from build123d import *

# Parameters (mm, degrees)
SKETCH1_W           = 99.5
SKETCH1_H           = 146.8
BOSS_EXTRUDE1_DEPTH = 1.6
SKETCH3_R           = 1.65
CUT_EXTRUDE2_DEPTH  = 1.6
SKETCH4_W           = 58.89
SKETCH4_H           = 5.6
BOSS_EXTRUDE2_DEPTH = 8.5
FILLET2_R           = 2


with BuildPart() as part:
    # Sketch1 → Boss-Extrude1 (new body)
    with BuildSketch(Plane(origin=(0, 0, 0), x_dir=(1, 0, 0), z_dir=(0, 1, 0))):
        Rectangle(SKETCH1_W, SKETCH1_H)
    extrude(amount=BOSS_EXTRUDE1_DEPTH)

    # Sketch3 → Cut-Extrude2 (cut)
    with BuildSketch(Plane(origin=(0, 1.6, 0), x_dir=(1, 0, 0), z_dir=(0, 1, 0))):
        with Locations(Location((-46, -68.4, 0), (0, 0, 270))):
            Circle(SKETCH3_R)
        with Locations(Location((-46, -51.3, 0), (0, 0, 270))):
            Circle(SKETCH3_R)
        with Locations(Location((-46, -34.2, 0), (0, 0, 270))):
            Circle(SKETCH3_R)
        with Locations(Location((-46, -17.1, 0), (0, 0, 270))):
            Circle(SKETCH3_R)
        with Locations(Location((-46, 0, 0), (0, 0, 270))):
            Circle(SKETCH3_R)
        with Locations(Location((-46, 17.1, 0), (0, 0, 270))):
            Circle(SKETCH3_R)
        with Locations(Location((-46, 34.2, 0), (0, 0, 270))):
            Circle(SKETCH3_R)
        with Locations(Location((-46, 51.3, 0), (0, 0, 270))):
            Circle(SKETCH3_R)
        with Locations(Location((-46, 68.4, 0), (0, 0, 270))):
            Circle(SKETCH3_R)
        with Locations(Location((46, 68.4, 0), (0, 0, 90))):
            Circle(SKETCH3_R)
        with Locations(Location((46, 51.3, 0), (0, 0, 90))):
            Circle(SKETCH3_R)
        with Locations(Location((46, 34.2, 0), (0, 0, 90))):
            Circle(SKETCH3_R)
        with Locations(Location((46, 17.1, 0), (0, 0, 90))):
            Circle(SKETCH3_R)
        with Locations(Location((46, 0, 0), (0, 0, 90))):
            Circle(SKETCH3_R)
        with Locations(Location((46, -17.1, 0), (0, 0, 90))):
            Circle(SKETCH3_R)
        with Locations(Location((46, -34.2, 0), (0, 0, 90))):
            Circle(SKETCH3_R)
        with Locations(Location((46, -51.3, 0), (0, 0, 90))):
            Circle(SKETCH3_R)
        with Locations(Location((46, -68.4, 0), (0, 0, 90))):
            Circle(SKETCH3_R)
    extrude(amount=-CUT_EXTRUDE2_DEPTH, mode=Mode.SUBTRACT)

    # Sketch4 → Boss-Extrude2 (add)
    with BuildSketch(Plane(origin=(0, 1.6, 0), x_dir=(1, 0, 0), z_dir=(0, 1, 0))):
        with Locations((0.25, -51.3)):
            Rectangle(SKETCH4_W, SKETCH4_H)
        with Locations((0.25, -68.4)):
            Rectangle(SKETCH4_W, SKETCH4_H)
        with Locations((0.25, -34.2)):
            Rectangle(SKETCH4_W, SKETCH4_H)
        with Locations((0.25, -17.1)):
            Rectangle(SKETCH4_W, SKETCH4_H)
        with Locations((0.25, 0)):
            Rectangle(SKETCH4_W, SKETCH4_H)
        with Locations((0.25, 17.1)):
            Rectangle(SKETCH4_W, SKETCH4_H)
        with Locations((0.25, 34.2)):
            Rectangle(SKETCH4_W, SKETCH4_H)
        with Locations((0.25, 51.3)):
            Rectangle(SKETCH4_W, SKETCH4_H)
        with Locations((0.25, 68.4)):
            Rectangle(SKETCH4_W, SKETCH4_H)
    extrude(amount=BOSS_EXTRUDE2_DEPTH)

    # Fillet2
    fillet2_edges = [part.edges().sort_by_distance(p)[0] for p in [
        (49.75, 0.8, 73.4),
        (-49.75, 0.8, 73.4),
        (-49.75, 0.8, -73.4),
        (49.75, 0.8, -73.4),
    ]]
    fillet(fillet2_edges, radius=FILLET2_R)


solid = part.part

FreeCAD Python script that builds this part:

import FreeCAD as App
import Part
import Sketcher
Q = App.Units.Quantity


def edges_at(feature, points):
    """Names of the edges that pass closest to the given points."""
    edges = feature.Shape.Edges
    near = lambda p: min(range(len(edges)), key=lambda i: edges[i].distToShape(Part.Vertex(*p))[0])
    return sorted({f"Edge{near(p) + 1}" for p in points})


def add_polygon(sketch, points):
    """Adds a closed chain of lines whose ends are joined by coincident constraints."""
    first, n = sketch.GeometryCount, len(points)
    for a, b in zip(points, points[1:] + points[:1]):
        sketch.addGeometry(Part.LineSegment(App.Vector(*a, 0), App.Vector(*b, 0)), False)
    for i in range(n):
        sketch.addConstraint(Sketcher.Constraint("Coincident", first + i, 2, first + (i + 1) % n, 1))

doc = App.newDocument("Part")
body = doc.addObject("PartDesign::Body", "Body")

# Sketch on XZ plane
sketch1 = body.newObject("Sketcher::SketchObject", "Sketch")
sketch1.AttachmentSupport = (doc.getObject("XZ_Plane"), [""])
sketch1.MapMode = "FlatFace"
add_polygon(sketch1, [(-50, -73), (-50, 73), (50, 73), (50, -73)])  # lines 0-3
sketch1.addConstraint([
    Sketcher.Constraint("Vertical", 0),
    Sketcher.Constraint("Horizontal", 1),
    Sketcher.Constraint("Vertical", 2),
    Sketcher.Constraint("Horizontal", 3),
    Sketcher.Constraint("Symmetric", 0, 2, 2, 2, -1, 1),
    Sketcher.Constraint("DistanceX", 1, 1, 1, 2, Q("99.5 mm")),
    Sketcher.Constraint("DistanceY", 0, 1, 0, 2, Q("146.8 mm")),
])
pad1 = body.newObject("PartDesign::Pad", "Pad")
pad1.Profile = sketch1
pad1.Length = 1.6
pad1.Reversed = True

# Sketch on XZ plane
sketch2 = body.newObject("Sketcher::SketchObject", "Sketch001")
sketch2.AttachmentSupport = (doc.getObject("XZ_Plane"), [""])
sketch2.MapMode = "FlatFace"
sketch2.AttachmentOffset = App.Placement(App.Vector(0, 0, -1.6), App.Rotation())
sketch2.addGeometry([
    Part.Circle(App.Vector(-46, 68.4, 0), App.Vector(0, 0, 1), 1.6),  # 0
    Part.Circle(App.Vector(-46, 51.3, 0), App.Vector(0, 0, 1), 1.6),  # 1
    Part.Circle(App.Vector(-46, 34.2, 0), App.Vector(0, 0, 1), 1.6),  # 2
    Part.Circle(App.Vector(-46, 17.1, 0), App.Vector(0, 0, 1), 1.6),  # 3
    Part.Circle(App.Vector(-46, 0, 0), App.Vector(0, 0, 1), 1.6),  # 4
    Part.Circle(App.Vector(-46, -17.1, 0), App.Vector(0, 0, 1), 1.6),  # 5
    Part.Circle(App.Vector(-46, -34.2, 0), App.Vector(0, 0, 1), 1.6),  # 6
    Part.Circle(App.Vector(-46, -51.3, 0), App.Vector(0, 0, 1), 1.6),  # 7
    Part.Circle(App.Vector(-46, -68.4, 0), App.Vector(0, 0, 1), 1.6),  # 8
    Part.Circle(App.Vector(46, -68.4, 0), App.Vector(0, 0, 1), 1.6),  # 9
    Part.Circle(App.Vector(46, -51.3, 0), App.Vector(0, 0, 1), 1.6),  # 10
    Part.Circle(App.Vector(46, -34.2, 0), App.Vector(0, 0, 1), 1.6),  # 11
    Part.Circle(App.Vector(46, -17.1, 0), App.Vector(0, 0, 1), 1.6),  # 12
    Part.Circle(App.Vector(46, 0, 0), App.Vector(0, 0, 1), 1.6),  # 13
    Part.Circle(App.Vector(46, 17.1, 0), App.Vector(0, 0, 1), 1.6),  # 14
    Part.Circle(App.Vector(46, 34.2, 0), App.Vector(0, 0, 1), 1.6),  # 15
    Part.Circle(App.Vector(46, 51.3, 0), App.Vector(0, 0, 1), 1.6),  # 16
    Part.Circle(App.Vector(46, 68.4, 0), App.Vector(0, 0, 1), 1.6),  # 17
], False)
sketch2.addConstraint([
    Sketcher.Constraint("Equal", 0, 1),
    Sketcher.Constraint("Equal", 1, 2),
    Sketcher.Constraint("Equal", 2, 3),
    Sketcher.Constraint("Equal", 3, 4),
    Sketcher.Constraint("Equal", 4, 5),
    Sketcher.Constraint("Equal", 5, 6),
    Sketcher.Constraint("Equal", 6, 7),
    Sketcher.Constraint("Equal", 7, 8),
    Sketcher.Constraint("Equal", 8, 9),
    Sketcher.Constraint("Equal", 9, 10),
    Sketcher.Constraint("Equal", 10, 11),
    Sketcher.Constraint("Equal", 11, 12),
    Sketcher.Constraint("Equal", 12, 13),
    Sketcher.Constraint("Equal", 13, 14),
    Sketcher.Constraint("Equal", 14, 15),
    Sketcher.Constraint("Equal", 15, 16),
    Sketcher.Constraint("Equal", 16, 17),
    Sketcher.Constraint("Symmetric", 0, 3, 9, 3, -1, 1),
    Sketcher.Constraint("Symmetric", 1, 3, 10, 3, -1, 1),
    Sketcher.Constraint("Symmetric", 2, 3, 11, 3, -1, 1),
    Sketcher.Constraint("Symmetric", 3, 3, 12, 3, -1, 1),
    Sketcher.Constraint("Symmetric", 4, 3, 13, 3, -1, 1),
    Sketcher.Constraint("Symmetric", 5, 3, 14, 3, -1, 1),
    Sketcher.Constraint("Symmetric", 6, 3, 15, 3, -1, 1),
    Sketcher.Constraint("Symmetric", 7, 3, 16, 3, -1, 1),
    Sketcher.Constraint("Symmetric", 8, 3, 17, 3, -1, 1),
    Sketcher.Constraint("Symmetric", 8, 3, 9, 3, -2),
    Sketcher.Constraint("Symmetric", 7, 3, 10, 3, -2),
    Sketcher.Constraint("Symmetric", 6, 3, 11, 3, -2),
    Sketcher.Constraint("Symmetric", 5, 3, 12, 3, -2),
    Sketcher.Constraint("PointOnObject", 4, 3, -1),
    Sketcher.Constraint("Vertical", 0, 3, 1, 3),
    Sketcher.Constraint("Vertical", 1, 3, 2, 3),
    Sketcher.Constraint("Vertical", 2, 3, 3, 3),
    Sketcher.Constraint("Vertical", 3, 3, 4, 3),
    Sketcher.Constraint("Diameter", 0, Q("3.3 mm")),
    Sketcher.Constraint("DistanceX", 0, 3, -1, 1, Q("46 mm")),
    Sketcher.Constraint("DistanceY", -1, 1, 0, 3, Q("68.4 mm")),
    Sketcher.Constraint("DistanceY", -1, 1, 1, 3, Q("51.3 mm")),
    Sketcher.Constraint("DistanceY", -1, 1, 2, 3, Q("34.2 mm")),
    Sketcher.Constraint("DistanceY", -1, 1, 3, 3, Q("17.1 mm")),
])
pocket1 = body.newObject("PartDesign::Pocket", "Pocket")
pocket1.Profile = sketch2
pocket1.Length = 1.6
pocket1.Reversed = True

# Sketch on XZ plane
sketch3 = body.newObject("Sketcher::SketchObject", "Sketch002")
sketch3.AttachmentSupport = (doc.getObject("XZ_Plane"), [""])
sketch3.MapMode = "FlatFace"
sketch3.AttachmentOffset = App.Placement(App.Vector(0, 0, -1.6), App.Rotation())
add_polygon(sketch3, [(-29, 48), (-29, 54), (30, 54), (30, 48)])  # lines 0-3
add_polygon(sketch3, [(-29, 66), (-29, 71), (30, 71), (30, 66)])  # lines 4-7
add_polygon(sketch3, [(-29, 31), (-29, 37), (30, 37), (30, 31)])  # lines 8-11
add_polygon(sketch3, [(-29, 14), (-29, 20), (30, 20), (30, 14)])  # lines 12-15
add_polygon(sketch3, [(-29, -3), (-29, 3), (30, 3), (30, -3)])  # lines 16-19
add_polygon(sketch3, [(-29, -20), (-29, -14), (30, -14), (30, -20)])  # lines 20-23
add_polygon(sketch3, [(-29, -37), (-29, -31), (30, -31), (30, -37)])  # lines 24-27
add_polygon(sketch3, [(-29, -54), (-29, -48), (30, -48), (30, -54)])  # lines 28-31
add_polygon(sketch3, [(-29, -71), (-29, -66), (30, -66), (30, -71)])  # lines 32-35
sketch3.addConstraint([
    Sketcher.Constraint("Vertical", 0),
    Sketcher.Constraint("Horizontal", 1),
    Sketcher.Constraint("Vertical", 2),
    Sketcher.Constraint("Horizontal", 3),
    Sketcher.Constraint("Vertical", 4),
    Sketcher.Constraint("Horizontal", 5),
    Sketcher.Constraint("Vertical", 6),
    Sketcher.Constraint("Horizontal", 7),
    Sketcher.Constraint("Vertical", 8),
    Sketcher.Constraint("Horizontal", 9),
    Sketcher.Constraint("Vertical", 10),
    Sketcher.Constraint("Horizontal", 11),
    Sketcher.Constraint("Vertical", 12),
    Sketcher.Constraint("Horizontal", 13),
    Sketcher.Constraint("Vertical", 14),
    Sketcher.Constraint("Horizontal", 15),
    Sketcher.Constraint("Vertical", 16),
    Sketcher.Constraint("Horizontal", 17),
    Sketcher.Constraint("Vertical", 18),
    Sketcher.Constraint("Horizontal", 19),
    Sketcher.Constraint("Vertical", 20),
    Sketcher.Constraint("Horizontal", 21),
    Sketcher.Constraint("Vertical", 22),
    Sketcher.Constraint("Horizontal", 23),
    Sketcher.Constraint("Vertical", 24),
    Sketcher.Constraint("Horizontal", 25),
    Sketcher.Constraint("Vertical", 26),
    Sketcher.Constraint("Horizontal", 27),
    Sketcher.Constraint("Vertical", 28),
    Sketcher.Constraint("Horizontal", 29),
    Sketcher.Constraint("Vertical", 30),
    Sketcher.Constraint("Horizontal", 31),
    Sketcher.Constraint("Vertical", 32),
    Sketcher.Constraint("Horizontal", 33),
    Sketcher.Constraint("Vertical", 34),
    Sketcher.Constraint("Horizontal", 35),
    Sketcher.Constraint("Symmetric", 15, 2, 20, 2, -1),
    Sketcher.Constraint("Symmetric", 13, 2, 22, 2, -1),
    Sketcher.Constraint("Symmetric", 11, 2, 24, 2, -1),
    Sketcher.Constraint("Symmetric", 9, 2, 26, 2, -1),
    Sketcher.Constraint("Symmetric", 3, 2, 28, 2, -1),
    Sketcher.Constraint("Symmetric", 1, 2, 30, 2, -1),
    Sketcher.Constraint("Symmetric", 7, 2, 32, 2, -1),
    Sketcher.Constraint("Symmetric", 5, 2, 34, 2, -1),
    Sketcher.Constraint("Vertical", 3, 2, 4, 2),
    Sketcher.Constraint("Vertical", 2, 2, 5, 2),
    Sketcher.Constraint("Vertical", 7, 2, 8, 2),
    Sketcher.Constraint("Vertical", 6, 2, 9, 2),
    Sketcher.Constraint("Vertical", 11, 2, 12, 2),
    Sketcher.Constraint("Vertical", 10, 2, 13, 2),
    Sketcher.Constraint("Vertical", 15, 2, 16, 2),
    Sketcher.Constraint("Vertical", 14, 2, 17, 2),
    Sketcher.Constraint("Equal", 2, 4),
    Sketcher.Constraint("Equal", 6, 8),
    Sketcher.Constraint("Equal", 10, 12),
    Sketcher.Constraint("Equal", 14, 16),
    Sketcher.Constraint("DistanceY", 0, 1, 0, 2, Q("5.6 mm")),
    Sketcher.Constraint("DistanceY", -1, 1, 8, 2, Q("37 mm")),
    Sketcher.Constraint("DistanceX", 1, 1, 1, 2, Q("58.89 mm")),
    Sketcher.Constraint("DistanceY", -1, 1, 0, 2, Q("54.1 mm")),
    Sketcher.Constraint("DistanceY", -1, 1, 4, 2, Q("71.2 mm")),
    Sketcher.Constraint("DistanceY", -1, 1, 12, 2, Q("19.9 mm")),
    Sketcher.Constraint("DistanceY", -1, 1, 16, 2, Q("2.8 mm")),
    Sketcher.Constraint("DistanceX", 0, 2, -1, 1, Q("29.195 mm")),
])
pad2 = body.newObject("PartDesign::Pad", "Pad001")
pad2.Profile = sketch3
pad2.Length = 8.5
pad2.Reversed = True
doc.recompute()

fillet = body.newObject("PartDesign::Fillet", "Fillet")
fillet.Base = (pad2, edges_at(pad2, [
    (49.75, 0.8, 73.4),
    (-49.75, 0.8, 73.4),
    (-49.75, 0.8, -73.4),
    (49.75, 0.8, -73.4),
]))
fillet.Radius = 2

doc.recompute()
